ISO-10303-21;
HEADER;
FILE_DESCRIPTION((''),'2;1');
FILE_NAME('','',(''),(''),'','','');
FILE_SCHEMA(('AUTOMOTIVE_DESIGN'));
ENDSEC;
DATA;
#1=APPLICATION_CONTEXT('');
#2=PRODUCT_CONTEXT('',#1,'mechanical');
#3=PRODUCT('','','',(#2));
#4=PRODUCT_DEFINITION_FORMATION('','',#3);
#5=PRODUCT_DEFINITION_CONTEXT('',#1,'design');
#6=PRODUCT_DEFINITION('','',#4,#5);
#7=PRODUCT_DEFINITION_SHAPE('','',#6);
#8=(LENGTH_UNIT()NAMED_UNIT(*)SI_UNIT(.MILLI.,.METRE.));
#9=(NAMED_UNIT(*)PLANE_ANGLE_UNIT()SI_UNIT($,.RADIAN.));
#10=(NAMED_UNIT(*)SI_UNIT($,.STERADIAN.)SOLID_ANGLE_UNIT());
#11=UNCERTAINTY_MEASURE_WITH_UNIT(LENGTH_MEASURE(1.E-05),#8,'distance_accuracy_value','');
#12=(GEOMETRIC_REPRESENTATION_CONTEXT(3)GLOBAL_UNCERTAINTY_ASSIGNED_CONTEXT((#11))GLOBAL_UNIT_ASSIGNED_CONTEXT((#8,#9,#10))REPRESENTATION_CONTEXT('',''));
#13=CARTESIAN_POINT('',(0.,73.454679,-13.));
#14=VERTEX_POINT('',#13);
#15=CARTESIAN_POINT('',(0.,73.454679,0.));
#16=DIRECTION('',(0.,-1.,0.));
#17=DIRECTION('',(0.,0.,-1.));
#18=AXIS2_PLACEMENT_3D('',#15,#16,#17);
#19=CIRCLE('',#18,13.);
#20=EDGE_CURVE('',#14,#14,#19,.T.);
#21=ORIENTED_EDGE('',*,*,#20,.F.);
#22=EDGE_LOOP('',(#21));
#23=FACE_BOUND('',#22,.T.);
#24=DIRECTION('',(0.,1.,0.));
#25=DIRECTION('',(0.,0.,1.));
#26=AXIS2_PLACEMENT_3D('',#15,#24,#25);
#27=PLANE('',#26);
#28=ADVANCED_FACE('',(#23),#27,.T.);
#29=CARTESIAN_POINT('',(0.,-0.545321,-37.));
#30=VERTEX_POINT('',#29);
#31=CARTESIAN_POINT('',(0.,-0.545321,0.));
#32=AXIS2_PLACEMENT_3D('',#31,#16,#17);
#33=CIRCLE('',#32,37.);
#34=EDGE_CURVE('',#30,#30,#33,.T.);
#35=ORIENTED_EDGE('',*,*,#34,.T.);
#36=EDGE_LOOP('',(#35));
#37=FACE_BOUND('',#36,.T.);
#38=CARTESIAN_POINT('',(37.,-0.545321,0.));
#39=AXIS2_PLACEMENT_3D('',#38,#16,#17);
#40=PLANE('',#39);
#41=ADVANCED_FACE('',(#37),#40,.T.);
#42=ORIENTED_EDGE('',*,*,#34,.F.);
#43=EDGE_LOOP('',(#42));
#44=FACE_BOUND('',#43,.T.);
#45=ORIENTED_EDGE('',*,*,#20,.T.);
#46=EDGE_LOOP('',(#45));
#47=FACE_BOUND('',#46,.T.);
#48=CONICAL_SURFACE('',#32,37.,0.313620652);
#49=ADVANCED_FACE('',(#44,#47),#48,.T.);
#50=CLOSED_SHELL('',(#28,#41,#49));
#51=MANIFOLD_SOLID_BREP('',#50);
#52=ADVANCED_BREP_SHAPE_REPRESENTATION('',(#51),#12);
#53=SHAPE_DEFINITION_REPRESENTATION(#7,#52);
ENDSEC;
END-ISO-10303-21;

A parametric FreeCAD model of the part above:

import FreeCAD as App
import Part
import Sketcher

V = App.Vector
Q = App.Units.Quantity

doc = App.newDocument("Part")
body = doc.addObject("PartDesign::Body", "Body")

sketch1 = doc.addObject("Sketcher::SketchObject", "Sketch")
body.addObject(sketch1)
sketch1.AttachmentSupport = (doc.XY_Plane, [""])
sketch1.MapMode = "FlatFace"
sketch1.addGeometry([
    Part.LineSegment(V(0, 73, 0), V(0, -1, 0)),
    Part.LineSegment(V(0, -1, 0), V(37, -1, 0)),
    Part.LineSegment(V(37, -1, 0), V(13, 73, 0)),
    Part.LineSegment(V(13, 73, 0), V(0, 73, 0)),
], False)
sketch1.addConstraint([
    Sketcher.Constraint("Coincident", 0, 2, 1, 1),
    Sketcher.Constraint("Coincident", 1, 2, 2, 1),
    Sketcher.Constraint("Coincident", 2, 2, 3, 1),
    Sketcher.Constraint("Coincident", 3, 2, 0, 1),
    Sketcher.Constraint("Vertical", 0),
    Sketcher.Constraint("Horizontal", 1),
    Sketcher.Constraint("Horizontal", 3),
    Sketcher.Constraint("PointOnObject", 0, 2, -2),
    Sketcher.Constraint("DistanceX", 1, 1, 1, 2, Q("37 mm")),
    Sketcher.Constraint("DistanceX", 3, 2, 3, 1, Q("13 mm")),
    Sketcher.Constraint("DistanceY", 0, 2, 0, 1, Q("74 mm")),
    Sketcher.Constraint("DistanceY", 0, 2, -1, 1, Q("0.545321 mm")),
])
revolution = doc.addObject("PartDesign::Revolution", "Revolution")
body.addObject(revolution)
revolution.Profile = sketch1
revolution.ReferenceAxis = (sketch1, ["V_Axis"])
revolution.Angle = 360

doc.recompute()
